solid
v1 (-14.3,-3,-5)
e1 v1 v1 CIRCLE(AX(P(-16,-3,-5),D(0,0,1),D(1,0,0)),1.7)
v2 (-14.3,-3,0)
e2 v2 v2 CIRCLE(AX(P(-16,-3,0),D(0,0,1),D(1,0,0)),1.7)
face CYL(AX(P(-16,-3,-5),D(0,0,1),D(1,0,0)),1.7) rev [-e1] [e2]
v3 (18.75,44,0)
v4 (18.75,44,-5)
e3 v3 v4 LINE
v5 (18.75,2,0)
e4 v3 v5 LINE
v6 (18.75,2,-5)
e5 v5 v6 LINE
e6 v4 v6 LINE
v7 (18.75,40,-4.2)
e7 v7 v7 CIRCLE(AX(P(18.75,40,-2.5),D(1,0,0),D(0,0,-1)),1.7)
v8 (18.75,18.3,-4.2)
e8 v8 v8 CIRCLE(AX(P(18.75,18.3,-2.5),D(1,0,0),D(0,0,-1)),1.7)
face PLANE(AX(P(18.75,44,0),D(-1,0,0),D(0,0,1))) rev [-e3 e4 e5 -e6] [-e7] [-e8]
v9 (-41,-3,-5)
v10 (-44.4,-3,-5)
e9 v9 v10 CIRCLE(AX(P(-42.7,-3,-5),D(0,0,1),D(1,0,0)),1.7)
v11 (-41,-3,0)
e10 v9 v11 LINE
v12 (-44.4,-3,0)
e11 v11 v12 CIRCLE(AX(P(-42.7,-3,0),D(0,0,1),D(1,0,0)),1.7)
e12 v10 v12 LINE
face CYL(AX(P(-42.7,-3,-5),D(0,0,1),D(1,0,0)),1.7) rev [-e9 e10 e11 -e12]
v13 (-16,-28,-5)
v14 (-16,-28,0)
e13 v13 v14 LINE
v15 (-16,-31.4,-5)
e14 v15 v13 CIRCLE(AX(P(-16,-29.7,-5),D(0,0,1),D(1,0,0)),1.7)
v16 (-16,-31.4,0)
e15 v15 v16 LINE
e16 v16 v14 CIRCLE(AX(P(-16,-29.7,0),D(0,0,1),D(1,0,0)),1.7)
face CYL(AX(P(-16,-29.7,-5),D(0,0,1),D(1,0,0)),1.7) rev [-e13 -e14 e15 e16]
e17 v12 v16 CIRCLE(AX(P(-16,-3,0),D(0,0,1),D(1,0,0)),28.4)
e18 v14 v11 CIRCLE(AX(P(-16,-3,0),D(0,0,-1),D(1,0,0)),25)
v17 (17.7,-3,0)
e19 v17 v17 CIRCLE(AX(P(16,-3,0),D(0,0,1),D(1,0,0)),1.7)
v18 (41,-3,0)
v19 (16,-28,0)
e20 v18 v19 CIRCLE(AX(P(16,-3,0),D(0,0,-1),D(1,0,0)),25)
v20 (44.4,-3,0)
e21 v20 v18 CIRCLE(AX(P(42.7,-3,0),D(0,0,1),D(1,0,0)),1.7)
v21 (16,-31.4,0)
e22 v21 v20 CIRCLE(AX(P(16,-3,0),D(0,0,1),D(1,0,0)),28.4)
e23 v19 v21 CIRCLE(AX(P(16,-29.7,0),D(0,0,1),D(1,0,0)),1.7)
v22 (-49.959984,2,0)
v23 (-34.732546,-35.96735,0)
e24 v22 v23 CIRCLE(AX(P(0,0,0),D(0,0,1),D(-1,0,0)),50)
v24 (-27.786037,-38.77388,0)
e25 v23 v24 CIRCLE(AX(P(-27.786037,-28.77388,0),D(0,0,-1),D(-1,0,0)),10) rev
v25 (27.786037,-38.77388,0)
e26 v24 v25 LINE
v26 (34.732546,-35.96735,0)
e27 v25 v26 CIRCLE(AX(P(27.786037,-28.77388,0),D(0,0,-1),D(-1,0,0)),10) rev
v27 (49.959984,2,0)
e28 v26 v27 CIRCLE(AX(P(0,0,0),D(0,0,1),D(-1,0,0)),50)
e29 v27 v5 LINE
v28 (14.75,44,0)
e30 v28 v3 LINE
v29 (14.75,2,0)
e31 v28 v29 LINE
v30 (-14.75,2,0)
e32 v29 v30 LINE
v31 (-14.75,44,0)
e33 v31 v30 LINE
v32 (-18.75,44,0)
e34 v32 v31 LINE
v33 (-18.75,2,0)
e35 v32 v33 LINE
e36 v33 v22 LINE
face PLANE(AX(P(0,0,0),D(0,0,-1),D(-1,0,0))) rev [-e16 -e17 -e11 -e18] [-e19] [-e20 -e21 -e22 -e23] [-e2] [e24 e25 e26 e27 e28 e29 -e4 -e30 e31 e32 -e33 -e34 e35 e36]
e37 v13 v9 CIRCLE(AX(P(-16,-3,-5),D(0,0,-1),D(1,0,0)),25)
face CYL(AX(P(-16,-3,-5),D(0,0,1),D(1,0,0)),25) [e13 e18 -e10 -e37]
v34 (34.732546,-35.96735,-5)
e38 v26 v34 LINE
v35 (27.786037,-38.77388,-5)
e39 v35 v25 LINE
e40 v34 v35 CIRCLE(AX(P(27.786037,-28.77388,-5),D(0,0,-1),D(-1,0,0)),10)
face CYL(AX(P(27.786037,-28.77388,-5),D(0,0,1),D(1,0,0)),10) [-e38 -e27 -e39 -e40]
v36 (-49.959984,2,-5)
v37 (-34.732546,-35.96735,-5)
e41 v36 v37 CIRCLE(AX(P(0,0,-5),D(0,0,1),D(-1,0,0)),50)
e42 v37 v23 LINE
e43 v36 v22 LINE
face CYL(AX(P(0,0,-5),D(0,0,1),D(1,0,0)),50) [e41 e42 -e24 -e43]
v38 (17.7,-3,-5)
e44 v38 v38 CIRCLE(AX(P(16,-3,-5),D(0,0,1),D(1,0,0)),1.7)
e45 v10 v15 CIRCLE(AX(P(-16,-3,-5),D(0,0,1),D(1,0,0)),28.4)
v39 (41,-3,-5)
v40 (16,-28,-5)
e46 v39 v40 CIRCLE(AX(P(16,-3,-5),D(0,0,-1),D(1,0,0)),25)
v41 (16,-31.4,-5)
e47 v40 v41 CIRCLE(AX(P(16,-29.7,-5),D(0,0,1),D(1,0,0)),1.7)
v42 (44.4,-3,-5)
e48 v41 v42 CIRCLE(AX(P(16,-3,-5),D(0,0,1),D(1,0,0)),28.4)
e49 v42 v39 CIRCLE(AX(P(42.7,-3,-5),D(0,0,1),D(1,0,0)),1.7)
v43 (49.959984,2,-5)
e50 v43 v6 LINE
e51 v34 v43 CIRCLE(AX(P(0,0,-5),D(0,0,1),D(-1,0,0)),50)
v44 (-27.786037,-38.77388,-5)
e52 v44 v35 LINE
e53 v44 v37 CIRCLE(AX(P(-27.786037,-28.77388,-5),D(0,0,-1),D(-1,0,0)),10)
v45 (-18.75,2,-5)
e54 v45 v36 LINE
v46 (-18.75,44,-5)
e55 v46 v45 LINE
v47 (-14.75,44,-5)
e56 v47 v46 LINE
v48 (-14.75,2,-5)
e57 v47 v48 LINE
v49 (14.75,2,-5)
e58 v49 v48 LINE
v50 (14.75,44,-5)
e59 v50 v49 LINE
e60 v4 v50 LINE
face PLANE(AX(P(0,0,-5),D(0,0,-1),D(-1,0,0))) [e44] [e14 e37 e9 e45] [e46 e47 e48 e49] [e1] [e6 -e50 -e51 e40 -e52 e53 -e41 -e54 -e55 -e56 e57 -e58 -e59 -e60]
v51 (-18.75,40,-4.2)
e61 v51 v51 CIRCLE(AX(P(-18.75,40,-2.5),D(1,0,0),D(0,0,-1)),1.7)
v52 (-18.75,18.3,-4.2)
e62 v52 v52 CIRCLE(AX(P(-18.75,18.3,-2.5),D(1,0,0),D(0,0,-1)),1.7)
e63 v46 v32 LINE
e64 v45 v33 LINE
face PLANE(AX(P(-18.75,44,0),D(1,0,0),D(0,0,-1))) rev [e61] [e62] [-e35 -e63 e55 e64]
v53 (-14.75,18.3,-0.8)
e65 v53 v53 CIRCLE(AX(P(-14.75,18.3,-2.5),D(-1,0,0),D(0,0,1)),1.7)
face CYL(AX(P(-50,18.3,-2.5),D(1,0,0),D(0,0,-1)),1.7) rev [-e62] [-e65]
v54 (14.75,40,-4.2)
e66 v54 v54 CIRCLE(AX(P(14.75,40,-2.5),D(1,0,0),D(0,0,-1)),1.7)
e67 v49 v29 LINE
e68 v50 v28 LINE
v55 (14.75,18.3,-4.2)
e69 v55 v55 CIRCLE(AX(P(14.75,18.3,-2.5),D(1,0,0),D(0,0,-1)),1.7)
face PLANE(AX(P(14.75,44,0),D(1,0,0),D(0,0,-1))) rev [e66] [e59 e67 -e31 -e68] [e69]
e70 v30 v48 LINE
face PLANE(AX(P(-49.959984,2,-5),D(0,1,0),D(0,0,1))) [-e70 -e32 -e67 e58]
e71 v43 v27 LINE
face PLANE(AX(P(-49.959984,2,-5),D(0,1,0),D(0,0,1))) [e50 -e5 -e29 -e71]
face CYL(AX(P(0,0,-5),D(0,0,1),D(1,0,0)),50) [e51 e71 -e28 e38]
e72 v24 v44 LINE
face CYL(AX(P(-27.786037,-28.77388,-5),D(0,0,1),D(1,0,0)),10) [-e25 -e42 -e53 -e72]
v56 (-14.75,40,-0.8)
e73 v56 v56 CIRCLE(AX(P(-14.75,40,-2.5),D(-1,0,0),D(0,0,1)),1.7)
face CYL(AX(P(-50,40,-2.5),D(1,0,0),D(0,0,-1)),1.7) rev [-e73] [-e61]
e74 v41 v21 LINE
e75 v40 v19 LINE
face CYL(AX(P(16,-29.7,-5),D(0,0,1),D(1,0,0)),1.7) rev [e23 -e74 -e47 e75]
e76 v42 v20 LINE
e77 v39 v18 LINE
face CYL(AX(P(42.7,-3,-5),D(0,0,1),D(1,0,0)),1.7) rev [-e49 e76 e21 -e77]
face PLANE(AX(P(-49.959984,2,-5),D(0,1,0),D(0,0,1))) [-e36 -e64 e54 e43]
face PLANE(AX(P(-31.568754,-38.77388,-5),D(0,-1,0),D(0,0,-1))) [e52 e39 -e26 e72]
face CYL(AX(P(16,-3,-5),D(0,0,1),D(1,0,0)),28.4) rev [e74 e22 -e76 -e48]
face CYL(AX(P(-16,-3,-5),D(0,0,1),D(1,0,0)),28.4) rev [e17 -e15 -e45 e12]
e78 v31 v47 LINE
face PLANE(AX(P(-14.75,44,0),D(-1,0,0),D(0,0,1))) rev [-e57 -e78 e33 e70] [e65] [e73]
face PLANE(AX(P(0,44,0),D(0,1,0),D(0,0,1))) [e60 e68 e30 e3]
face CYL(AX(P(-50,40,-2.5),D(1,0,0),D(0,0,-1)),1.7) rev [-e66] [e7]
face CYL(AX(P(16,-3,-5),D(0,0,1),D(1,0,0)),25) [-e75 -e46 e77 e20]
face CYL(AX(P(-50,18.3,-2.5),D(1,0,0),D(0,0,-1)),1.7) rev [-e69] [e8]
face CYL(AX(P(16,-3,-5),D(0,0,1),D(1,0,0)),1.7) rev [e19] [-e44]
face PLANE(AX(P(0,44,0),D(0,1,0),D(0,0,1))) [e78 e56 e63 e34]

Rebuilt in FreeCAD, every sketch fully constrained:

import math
import FreeCAD as App
import Part
import Sketcher


def edges_at(feature, points):
    """Names of the edges that pass closest to the given points."""
    edges = feature.Shape.Edges
    near = lambda p: min(range(len(edges)), key=lambda i: edges[i].distToShape(Part.Vertex(*p))[0])
    return sorted({f"Edge{near(p) + 1}" for p in points})


def add_polygon(sketch, points):
    """Adds a closed chain of lines whose ends are joined by coincident constraints."""
    first, n = sketch.GeometryCount, len(points)
    for a, b in zip(points, points[1:] + points[:1]):
        sketch.addGeometry(Part.LineSegment(App.Vector(*a, 0), App.Vector(*b, 0)), False)
    for i in range(n):
        sketch.addConstraint(Sketcher.Constraint("Coincident", first + i, 2, first + (i + 1) % n, 1))

doc = App.newDocument("Part")
body = doc.addObject("PartDesign::Body", "Body")

# Sketch on XY plane
sketch1 = doc.addObject("Sketcher::SketchObject", "Sketch")
body.addObject(sketch1)
sketch1.AttachmentSupport = (doc.XY_Plane, [""])
sketch1.MapMode = "FlatFace"
sketch1.addGeometry([
    Part.LineSegment(App.Vector(50, 2, 0), App.Vector(-50, 2, 0)),  # 0
    Part.ArcOfCircle(Part.Circle(App.Vector(0, 0, 0), App.Vector(0, 0, 1), 50), math.radians(178), math.radians(231)),  # 1
    Part.LineSegment(App.Vector(-31.6, -38.8, 0), App.Vector(31.6, -38.8, 0)),  # 2
    Part.ArcOfCircle(Part.Circle(App.Vector(0, 0, 0), App.Vector(0, 0, 1), 50), math.radians(-51), math.radians(2)),  # 3
    Part.ArcOfCircle(Part.Circle(App.Vector(16, -29.7, 0), App.Vector(0, 0, 1), 1.7), math.radians(90), math.radians(270)),  # 4
    Part.ArcOfCircle(Part.Circle(App.Vector(16, -3, 0), App.Vector(0, 0, 1), 25), math.radians(-90), math.radians(0)),  # 5
    Part.ArcOfCircle(Part.Circle(App.Vector(42.7, -3, 0), App.Vector(0, 0, 1), 1.7), math.radians(0), math.radians(180)),  # 6
    Part.ArcOfCircle(Part.Circle(App.Vector(16, -3, 0), App.Vector(0, 0, 1), 28.4), math.radians(-90), math.radians(0)),  # 7
    Part.Circle(App.Vector(16, -3, 0), App.Vector(0, 0, 1), 1.7),  # 8
    Part.ArcOfCircle(Part.Circle(App.Vector(-42.7, -3, 0), App.Vector(0, 0, 1), 1.7), math.radians(0), math.radians(180)),  # 9
    Part.ArcOfCircle(Part.Circle(App.Vector(-16, -3, 0), App.Vector(0, 0, 1), 25), math.radians(180), math.radians(270)),  # 10
    Part.ArcOfCircle(Part.Circle(App.Vector(-16, -29.7, 0), App.Vector(0, 0, 1), 1.7), math.radians(-90), math.radians(90)),  # 11
    Part.ArcOfCircle(Part.Circle(App.Vector(-16, -3, 0), App.Vector(0, 0, 1), 28.4), math.radians(180), math.radians(270)),  # 12
    Part.Circle(App.Vector(-16, -3, 0), App.Vector(0, 0, 1), 1.7),  # 13
], False)
sketch1.addConstraint([
    Sketcher.Constraint("Coincident", 0, 2, 1, 1),
    Sketcher.Constraint("Coincident", 1, 2, 2, 1),
    Sketcher.Constraint("Coincident", 2, 2, 3, 1),
    Sketcher.Constraint("Coincident", 3, 2, 0, 1),
    Sketcher.Constraint("Tangent", 4, 1, 5, 1),
    Sketcher.Constraint("Tangent", 5, 2, 6, 2),
    Sketcher.Constraint("Tangent", 6, 1, 7, 2),
    Sketcher.Constraint("Tangent", 7, 1, 4, 2),
    Sketcher.Constraint("Tangent", 9, 1, 10, 1),
    Sketcher.Constraint("Tangent", 10, 2, 11, 2),
    Sketcher.Constraint("Tangent", 11, 1, 12, 2),
    Sketcher.Constraint("Tangent", 12, 1, 9, 2),
    Sketcher.Constraint("Horizontal", 0),
    Sketcher.Constraint("Horizontal", 2),
    Sketcher.Constraint("Coincident", 1, 3, -1, 1),
    Sketcher.Constraint("Coincident", 3, 3, -1, 1),
    Sketcher.Constraint("Coincident", 7, 3, 5, 3),
    Sketcher.Constraint("Coincident", 8, 3, 5, 3),
    Sketcher.Constraint("Coincident", 12, 3, 10, 3),
    Sketcher.Constraint("Coincident", 13, 3, 10, 3),
    Sketcher.Constraint("Equal", 1, 3),
    Sketcher.Constraint("Equal", 6, 8),
    Sketcher.Constraint("Equal", 8, 9),
    Sketcher.Constraint("Equal", 5, 10),
    Sketcher.Constraint("Equal", 11, 13),
    Sketcher.Constraint("Symmetric", 6, 3, 9, 3, -2),
    Sketcher.Constraint("Symmetric", 4, 3, 11, 3, -2),
    Sketcher.Constraint("Horizontal", 5, 3, 6, 3),
    Sketcher.Constraint("Vertical", 4, 3, 5, 3),
    Sketcher.Constraint("Radius", 1, 50.0),
    Sketcher.Constraint("Radius", 5, 25.0),
    Sketcher.Constraint("Diameter", 8, 3.4),
    Sketcher.Constraint("DistanceX", -1, 1, 4, 3, 16.0),
    Sketcher.Constraint("DistanceY", 5, 3, -1, 1, 3.0),
    Sketcher.Constraint("DistanceY", -1, 1, 0, 2, 2.0),
    Sketcher.Constraint("DistanceX", 2, 1, 2, 2, 63.137508),
])
pad1 = doc.addObject("PartDesign::Pad", "Pad")
body.addObject(pad1)
pad1.Profile = sketch1
pad1.Length = 5
pad1.Reversed = True

# Sketch on XZ plane
sketch2 = doc.addObject("Sketcher::SketchObject", "Sketch001")
body.addObject(sketch2)
sketch2.AttachmentSupport = (doc.XZ_Plane, [""])
sketch2.MapMode = "FlatFace"
sketch2.AttachmentOffset = App.Placement(App.Vector(0, 0, -2), App.Rotation())
add_polygon(sketch2, [(14.8, -5), (14.8, 0), (18.8, 0), (18.8, -5)])  # lines 0-3
add_polygon(sketch2, [(-18.8, -5), (-18.8, 0), (-14.8, 0), (-14.8, -5)])  # lines 4-7
sketch2.addConstraint([
    Sketcher.Constraint("Vertical", 0),
    Sketcher.Constraint("Horizontal", 1),
    Sketcher.Constraint("Vertical", 2),
    Sketcher.Constraint("Horizontal", 3),
    Sketcher.Constraint("Vertical", 4),
    Sketcher.Constraint("Horizontal", 5),
    Sketcher.Constraint("Vertical", 6),
    Sketcher.Constraint("Horizontal", 7),
    Sketcher.Constraint("Symmetric", 1, 2, 4, 2, -1, 1),
    Sketcher.Constraint("Symmetric", 0, 2, 5, 2, -2),
    Sketcher.Constraint("Horizontal", 3, 2, 6, 2),
    Sketcher.Constraint("DistanceX", 1, 1, 1, 2, 4.0),
    Sketcher.Constraint("DistanceY", 0, 1, 0, 2, 5.0),
    Sketcher.Constraint("DistanceX", 4, 2, 0, 2, 33.5),
])
pad2 = doc.addObject("PartDesign::Pad", "Pad001")
body.addObject(pad2)
pad2.Profile = sketch2
pad2.Length = 42
pad2.Reversed = True

# Sketch on YZ plane
sketch3 = doc.addObject("Sketcher::SketchObject", "Sketch002")
body.addObject(sketch3)
sketch3.AttachmentSupport = (doc.YZ_Plane, [""])
sketch3.MapMode = "FlatFace"
sketch3.AttachmentOffset = App.Placement(App.Vector(0, 0, 18.75), App.Rotation())
sketch3.addGeometry([
    Part.Circle(App.Vector(40, -2.5, 0), App.Vector(0, 0, 1), 1.7),
    Part.Circle(App.Vector(18.3, -2.5, 0), App.Vector(0, 0, 1), 1.7),
], False)
sketch3.addConstraint([
    Sketcher.Constraint("Equal", 0, 1),
    Sketcher.Constraint("Horizontal", 0, 3, 1, 3),
    Sketcher.Constraint("Diameter", 0, 3.4),
    Sketcher.Constraint("DistanceX", -1, 1, 0, 3, 40.0),
    Sketcher.Constraint("DistanceY", 0, 3, -1, 1, 2.5),
    Sketcher.Constraint("DistanceX", -1, 1, 1, 3, 18.3),
])
pocket1 = doc.addObject("PartDesign::Pocket", "Pocket")
body.addObject(pocket1)
pocket1.Profile = sketch3
pocket1.Type = "ThroughAll"
doc.recompute()

fillet = doc.addObject("PartDesign::Fillet", "Fillet")
body.addObject(fillet)
fillet.Base = (pocket1, edges_at(pocket1, [(31.569, -38.774, -2.5)]))
fillet.Radius = 10
doc.recompute()

fillet2 = doc.addObject("PartDesign::Fillet", "Fillet001")
body.addObject(fillet2)
fillet2.Base = (fillet, edges_at(fillet, [(-31.569, -38.774, -2.5)]))
fillet2.Radius = 10

doc.recompute()
